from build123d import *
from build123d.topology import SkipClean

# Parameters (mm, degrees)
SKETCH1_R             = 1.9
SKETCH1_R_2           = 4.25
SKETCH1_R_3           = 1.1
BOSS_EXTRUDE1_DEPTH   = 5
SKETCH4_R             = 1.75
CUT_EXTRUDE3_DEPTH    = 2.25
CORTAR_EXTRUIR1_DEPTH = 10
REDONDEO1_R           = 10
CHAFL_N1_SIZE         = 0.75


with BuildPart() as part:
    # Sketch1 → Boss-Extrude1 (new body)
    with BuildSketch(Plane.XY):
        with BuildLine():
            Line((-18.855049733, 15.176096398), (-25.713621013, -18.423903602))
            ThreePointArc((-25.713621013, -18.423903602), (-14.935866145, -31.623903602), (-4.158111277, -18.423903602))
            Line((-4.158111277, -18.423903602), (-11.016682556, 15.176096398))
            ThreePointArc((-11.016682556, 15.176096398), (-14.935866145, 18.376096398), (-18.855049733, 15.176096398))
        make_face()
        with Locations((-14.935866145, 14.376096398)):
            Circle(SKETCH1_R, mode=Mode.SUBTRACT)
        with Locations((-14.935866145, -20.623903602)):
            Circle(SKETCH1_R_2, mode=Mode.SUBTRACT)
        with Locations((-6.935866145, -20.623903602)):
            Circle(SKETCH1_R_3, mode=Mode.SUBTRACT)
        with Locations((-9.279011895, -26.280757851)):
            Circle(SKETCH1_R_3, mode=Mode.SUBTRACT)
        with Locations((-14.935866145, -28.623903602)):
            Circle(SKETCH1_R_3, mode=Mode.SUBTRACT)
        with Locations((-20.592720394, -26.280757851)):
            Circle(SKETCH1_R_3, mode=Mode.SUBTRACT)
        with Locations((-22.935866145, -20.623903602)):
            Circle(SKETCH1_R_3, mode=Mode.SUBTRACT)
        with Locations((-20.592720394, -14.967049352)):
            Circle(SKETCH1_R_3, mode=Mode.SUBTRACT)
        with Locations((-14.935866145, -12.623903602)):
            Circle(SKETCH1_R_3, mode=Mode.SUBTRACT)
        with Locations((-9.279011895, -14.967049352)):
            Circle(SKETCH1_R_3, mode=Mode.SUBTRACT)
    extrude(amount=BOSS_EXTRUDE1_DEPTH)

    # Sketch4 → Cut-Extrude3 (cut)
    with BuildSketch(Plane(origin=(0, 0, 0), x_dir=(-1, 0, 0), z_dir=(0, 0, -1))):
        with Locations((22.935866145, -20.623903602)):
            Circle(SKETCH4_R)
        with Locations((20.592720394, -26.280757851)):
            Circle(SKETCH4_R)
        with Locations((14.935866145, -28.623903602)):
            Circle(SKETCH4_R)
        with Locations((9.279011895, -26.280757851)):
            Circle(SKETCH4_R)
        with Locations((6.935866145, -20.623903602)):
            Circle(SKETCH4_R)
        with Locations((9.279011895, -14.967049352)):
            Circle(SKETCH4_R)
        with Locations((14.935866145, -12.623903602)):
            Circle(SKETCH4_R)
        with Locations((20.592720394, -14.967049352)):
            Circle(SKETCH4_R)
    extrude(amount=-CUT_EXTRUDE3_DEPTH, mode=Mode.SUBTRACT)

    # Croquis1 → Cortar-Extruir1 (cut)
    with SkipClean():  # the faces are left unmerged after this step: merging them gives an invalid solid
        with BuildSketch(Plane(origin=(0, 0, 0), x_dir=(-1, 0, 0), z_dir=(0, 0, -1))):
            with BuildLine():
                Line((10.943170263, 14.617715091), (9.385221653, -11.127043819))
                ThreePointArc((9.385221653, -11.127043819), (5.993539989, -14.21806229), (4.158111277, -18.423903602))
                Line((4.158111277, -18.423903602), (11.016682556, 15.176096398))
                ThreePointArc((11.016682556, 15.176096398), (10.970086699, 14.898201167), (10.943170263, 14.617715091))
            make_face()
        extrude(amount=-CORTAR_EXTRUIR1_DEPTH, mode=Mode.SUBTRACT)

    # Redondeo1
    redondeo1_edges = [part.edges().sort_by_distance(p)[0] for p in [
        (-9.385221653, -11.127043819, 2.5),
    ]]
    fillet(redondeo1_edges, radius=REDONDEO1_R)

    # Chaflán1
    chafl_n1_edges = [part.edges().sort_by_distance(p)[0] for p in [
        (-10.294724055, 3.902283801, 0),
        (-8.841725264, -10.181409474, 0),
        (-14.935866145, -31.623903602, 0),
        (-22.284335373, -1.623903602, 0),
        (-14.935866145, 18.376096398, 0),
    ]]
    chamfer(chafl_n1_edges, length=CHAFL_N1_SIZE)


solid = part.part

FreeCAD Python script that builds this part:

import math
import FreeCAD as App
import Part
import Sketcher

V = App.Vector
Q = App.Units.Quantity


def edges_at(feature, points):
    """Names of the edges that pass closest to the given points."""
    edges = feature.Shape.Edges
    near = lambda p: min(range(len(edges)), key=lambda i: edges[i].distToShape(Part.Vertex(*p))[0])
    return sorted({f"Edge{near(p) + 1}" for p in points})

doc = App.newDocument("Part")
body = doc.addObject("PartDesign::Body", "Body")

sketch1 = body.newObject("Sketcher::SketchObject", "Sketch")
sketch1.AttachmentSupport = (doc.getObject("XY_Plane"), [""])
sketch1.MapMode = "FlatFace"
sketch1.addGeometry(Part.LineSegment(V(-18.9, 15.2, 0), V(-25.7, -18.4, 0)), False)
sketch1.addGeometry(Part.ArcOfCircle(Part.Circle(V(-14.9, -20.6, 0), V(0, 0, 1), 11), math.radians(168), math.radians(372)), False)
sketch1.addGeometry(Part.LineSegment(V(-4.2, -18.4, 0), V(-11, 15.2, 0)), False)
sketch1.addGeometry(Part.ArcOfCircle(Part.Circle(V(-14.9, 14.4, 0), V(0, 0, 1), 4), math.radians(12), math.radians(168)), False)
sketch1.addGeometry(Part.Circle(V(-20.6, -26.3, 0), V(0, 0, 1), 1.1), False)
sketch1.addGeometry(Part.Circle(V(-22.9, -20.6, 0), V(0, 0, 1), 1.1), False)
sketch1.addGeometry(Part.Circle(V(-14.9, -28.6, 0), V(0, 0, 1), 1.1), False)
sketch1.addGeometry(Part.Circle(V(-14.9, -20.6, 0), V(0, 0, 1), 4.2), False)
sketch1.addGeometry(Part.Circle(V(-20.6, -15, 0), V(0, 0, 1), 1.1), False)
sketch1.addGeometry(Part.Circle(V(-14.9, -12.6, 0), V(0, 0, 1), 1.1), False)
sketch1.addGeometry(Part.Circle(V(-9.3, -26.3, 0), V(0, 0, 1), 1.1), False)
sketch1.addGeometry(Part.Circle(V(-6.9, -20.6, 0), V(0, 0, 1), 1.1), False)
sketch1.addGeometry(Part.Circle(V(-9.3, -15, 0), V(0, 0, 1), 1.1), False)
sketch1.addGeometry(Part.Circle(V(-14.9, 14.4, 0), V(0, 0, 1), 1.9), False)
sketch1.addConstraint(Sketcher.Constraint("Tangent", 0, 2, 1, 1))
sketch1.addConstraint(Sketcher.Constraint("Tangent", 1, 2, 2, 1))
sketch1.addConstraint(Sketcher.Constraint("Tangent", 2, 2, 3, 1))
sketch1.addConstraint(Sketcher.Constraint("Tangent", 3, 2, 0, 1))
sketch1.addConstraint(Sketcher.Constraint("Coincident", 7, 3, 1, 3))
sketch1.addConstraint(Sketcher.Constraint("Coincident", 13, 3, 3, 3))
sketch1.addConstraint(Sketcher.Constraint("Equal", 4, 5))
sketch1.addConstraint(Sketcher.Constraint("Equal", 5, 6))
sketch1.addConstraint(Sketcher.Constraint("Equal", 6, 8))
sketch1.addConstraint(Sketcher.Constraint("Equal", 8, 9))
sketch1.addConstraint(Sketcher.Constraint("Equal", 9, 10))
sketch1.addConstraint(Sketcher.Constraint("Equal", 10, 11))
sketch1.addConstraint(Sketcher.Constraint("Equal", 11, 12))
sketch1.addConstraint(Sketcher.Constraint("Horizontal", 1, 3, 5, 3))
sketch1.addConstraint(Sketcher.Constraint("Horizontal", 4, 3, 10, 3))
sketch1.addConstraint(Sketcher.Constraint("Horizontal", 7, 3, 11, 3))
sketch1.addConstraint(Sketcher.Constraint("Horizontal", 8, 3, 12, 3))
sketch1.addConstraint(Sketcher.Constraint("Horizontal", 0, 2, 1, 2))
sketch1.addConstraint(Sketcher.Constraint("Vertical", 3, 3, 6, 3))
sketch1.addConstraint(Sketcher.Constraint("Vertical", 4, 3, 8, 3))
sketch1.addConstraint(Sketcher.Constraint("Vertical", 7, 3, 9, 3))
sketch1.addConstraint(Sketcher.Constraint("Vertical", 10, 3, 12, 3))
sketch1.addConstraint(Sketcher.Constraint("Radius", 1, Q("11 mm")))
sketch1.addConstraint(Sketcher.Constraint("Radius", 3, Q("4 mm")))
sketch1.addConstraint(Sketcher.Constraint("Diameter", 4, Q("2.2 mm")))
sketch1.addConstraint(Sketcher.Constraint("Diameter", 7, Q("8.5 mm")))
sketch1.addConstraint(Sketcher.Constraint("Diameter", 13, Q("3.8 mm")))
sketch1.addConstraint(Sketcher.Constraint("DistanceY", 1, 3, 3, 3, Q("35 mm")))
sketch1.addConstraint(Sketcher.Constraint("DistanceX", 5, 3, 1, 3, Q("8 mm")))
sketch1.addConstraint(Sketcher.Constraint("DistanceY", 6, 3, 1, 3, Q("8 mm")))
sketch1.addConstraint(Sketcher.Constraint("DistanceY", 1, 3, 9, 3, Q("8 mm")))
sketch1.addConstraint(Sketcher.Constraint("DistanceX", 1, 3, 11, 3, Q("8 mm")))
sketch1.addConstraint(Sketcher.Constraint("DistanceX", 0, 2, 8, 3, Q("5.120901 mm")))
sketch1.addConstraint(Sketcher.Constraint("DistanceX", 12, 3, 1, 2, Q("5.120901 mm")))
sketch1.addConstraint(Sketcher.Constraint("DistanceX", 4, 3, -1, 1, Q("20.59272 mm")))
sketch1.addConstraint(Sketcher.Constraint("DistanceY", 8, 3, -1, 1, Q("14.967049 mm")))
sketch1.addConstraint(Sketcher.Constraint("DistanceY", 4, 3, 8, 3, Q("11.313708 mm")))
sketch1.addConstraint(Sketcher.Constraint("DistanceY", 1, 3, -1, 1, Q("20.623904 mm")))
pad1 = body.newObject("PartDesign::Pad", "Pad")
pad1.Profile = sketch1
pad1.Length = 5

sketch2 = body.newObject("Sketcher::SketchObject", "Sketch001")
sketch2.AttachmentSupport = (doc.getObject("XY_Plane"), [""])
sketch2.MapMode = "FlatFace"
sketch2.addGeometry(Part.Circle(V(-22.9, -20.6, 0), V(0, 0, 1), 1.8), False)
sketch2.addGeometry(Part.Circle(V(-20.6, -26.3, 0), V(0, 0, 1), 1.8), False)
sketch2.addGeometry(Part.Circle(V(-14.9, -28.6, 0), V(0, 0, 1), 1.8), False)
sketch2.addGeometry(Part.Circle(V(-9.3, -26.3, 0), V(0, 0, 1), 1.8), False)
sketch2.addGeometry(Part.Circle(V(-6.9, -20.6, 0), V(0, 0, 1), 1.8), False)
sketch2.addGeometry(Part.Circle(V(-9.3, -15, 0), V(0, 0, 1), 1.8), False)
sketch2.addGeometry(Part.Circle(V(-14.9, -12.6, 0), V(0, 0, 1), 1.8), False)
sketch2.addGeometry(Part.Circle(V(-20.6, -15, 0), V(0, 0, 1), 1.8), False)
sketch2.addConstraint(Sketcher.Constraint("Equal", 0, 1))
sketch2.addConstraint(Sketcher.Constraint("Equal", 1, 2))
sketch2.addConstraint(Sketcher.Constraint("Equal", 2, 3))
sketch2.addConstraint(Sketcher.Constraint("Equal", 3, 4))
sketch2.addConstraint(Sketcher.Constraint("Equal", 4, 5))
sketch2.addConstraint(Sketcher.Constraint("Equal", 5, 6))
sketch2.addConstraint(Sketcher.Constraint("Equal", 6, 7))
sketch2.addConstraint(Sketcher.Constraint("Horizontal", 1, 3, 3, 3))
sketch2.addConstraint(Sketcher.Constraint("Horizontal", 0, 3, 4, 3))
sketch2.addConstraint(Sketcher.Constraint("Horizontal", 5, 3, 7, 3))
sketch2.addConstraint(Sketcher.Constraint("Vertical", 3, 3, 5, 3))
sketch2.addConstraint(Sketcher.Constraint("Vertical", 2, 3, 6, 3))
sketch2.addConstraint(Sketcher.Constraint("Vertical", 1, 3, 7, 3))
sketch2.addConstraint(Sketcher.Constraint("Diameter", 0, Q("3.5 mm")))
sketch2.addConstraint(Sketcher.Constraint("DistanceX", 0, 3, 2, 3, Q("8 mm")))
sketch2.addConstraint(Sketcher.Constraint("DistanceY", 2, 3, 0, 3, Q("8 mm")))
sketch2.addConstraint(Sketcher.Constraint("DistanceX", 2, 3, 4, 3, Q("8 mm")))
sketch2.addConstraint(Sketcher.Constraint("DistanceY", 0, 3, 6, 3, Q("8 mm")))
sketch2.addConstraint(Sketcher.Constraint("DistanceX", 1, 3, -1, 1, Q("20.59272 mm")))
sketch2.addConstraint(Sketcher.Constraint("DistanceX", 3, 3, -1, 1, Q("9.279012 mm")))
sketch2.addConstraint(Sketcher.Constraint("DistanceY", 5, 3, -1, 1, Q("14.967049 mm")))
sketch2.addConstraint(Sketcher.Constraint("DistanceY", 3, 3, 5, 3, Q("11.313708 mm")))
sketch2.addConstraint(Sketcher.Constraint("DistanceX", 0, 3, -1, 1, Q("22.935866 mm")))
sketch2.addConstraint(Sketcher.Constraint("DistanceY", 0, 3, -1, 1, Q("20.623904 mm")))
pocket1 = body.newObject("PartDesign::Pocket", "Pocket")
pocket1.Profile = sketch2
pocket1.Length = 2.25
pocket1.Reversed = True

sketch3 = body.newObject("Sketcher::SketchObject", "Sketch002")
sketch3.AttachmentSupport = (doc.getObject("XY_Plane"), [""])
sketch3.MapMode = "FlatFace"
sketch3.addGeometry(Part.LineSegment(V(-9.4, -11.1, 0), V(-10.9, 14.6, 0)), False)
sketch3.addGeometry(Part.ArcOfCircle(Part.Circle(V(-14.9, 14.4, 0), V(0, 0, 1), 4), math.radians(3.46), math.radians(11.54)), False)
sketch3.addGeometry(Part.LineSegment(V(-11, 15.2, 0), V(-4.2, -18.4, 0)), False)
sketch3.addGeometry(Part.ArcOfCircle(Part.Circle(V(-14.9, -20.6, 0), V(0, 0, 1), 11), math.radians(12), math.radians(60)), False)
sketch3.addConstraint(Sketcher.Constraint("Tangent", 0, 2, 1, 1))
sketch3.addConstraint(Sketcher.Constraint("Tangent", 1, 2, 2, 1))
sketch3.addConstraint(Sketcher.Constraint("Tangent", 2, 2, 3, 1))
sketch3.addConstraint(Sketcher.Constraint("Coincident", 3, 2, 0, 1))
sketch3.addConstraint(Sketcher.Constraint("Vertical", 1, 3, 3, 3))
sketch3.addConstraint(Sketcher.Constraint("Radius", 1, Q("4 mm")))
sketch3.addConstraint(Sketcher.Constraint("Radius", 3, Q("11 mm")))
sketch3.addConstraint(Sketcher.Constraint("DistanceY", 3, 3, 1, 3, Q("35 mm")))
sketch3.addConstraint(Sketcher.Constraint("DistanceX", 0, 2, -1, 1, Q("10.94317 mm")))
sketch3.addConstraint(Sketcher.Constraint("DistanceX", 2, 2, -1, 1, Q("4.158111 mm")))
sketch3.addConstraint(Sketcher.Constraint("DistanceY", -1, 1, 1, 3, Q("14.376096 mm")))
pocket2 = body.newObject("PartDesign::Pocket", "Pocket001")
pocket2.Profile = sketch3
pocket2.Length = 10
pocket2.Reversed = True
doc.recompute()

fillet = body.newObject("PartDesign::Fillet", "Fillet")
fillet.Base = (pocket2, edges_at(pocket2, [(-9.385, -11.127, 2.5)]))
fillet.Radius = 10
doc.recompute()

chamfer = body.newObject("PartDesign::Chamfer", "Chamfer")
chamfer.Base = (fillet, edges_at(fillet, [
    (-10.295, 3.902, 0),
    (-8.842, -10.181, 0),
    (-14.936, -31.624, 0),
    (-22.284, -1.624, 0),
    (-14.936, 18.376, 0),
]))
chamfer.Size = 0.75

doc.recompute()
